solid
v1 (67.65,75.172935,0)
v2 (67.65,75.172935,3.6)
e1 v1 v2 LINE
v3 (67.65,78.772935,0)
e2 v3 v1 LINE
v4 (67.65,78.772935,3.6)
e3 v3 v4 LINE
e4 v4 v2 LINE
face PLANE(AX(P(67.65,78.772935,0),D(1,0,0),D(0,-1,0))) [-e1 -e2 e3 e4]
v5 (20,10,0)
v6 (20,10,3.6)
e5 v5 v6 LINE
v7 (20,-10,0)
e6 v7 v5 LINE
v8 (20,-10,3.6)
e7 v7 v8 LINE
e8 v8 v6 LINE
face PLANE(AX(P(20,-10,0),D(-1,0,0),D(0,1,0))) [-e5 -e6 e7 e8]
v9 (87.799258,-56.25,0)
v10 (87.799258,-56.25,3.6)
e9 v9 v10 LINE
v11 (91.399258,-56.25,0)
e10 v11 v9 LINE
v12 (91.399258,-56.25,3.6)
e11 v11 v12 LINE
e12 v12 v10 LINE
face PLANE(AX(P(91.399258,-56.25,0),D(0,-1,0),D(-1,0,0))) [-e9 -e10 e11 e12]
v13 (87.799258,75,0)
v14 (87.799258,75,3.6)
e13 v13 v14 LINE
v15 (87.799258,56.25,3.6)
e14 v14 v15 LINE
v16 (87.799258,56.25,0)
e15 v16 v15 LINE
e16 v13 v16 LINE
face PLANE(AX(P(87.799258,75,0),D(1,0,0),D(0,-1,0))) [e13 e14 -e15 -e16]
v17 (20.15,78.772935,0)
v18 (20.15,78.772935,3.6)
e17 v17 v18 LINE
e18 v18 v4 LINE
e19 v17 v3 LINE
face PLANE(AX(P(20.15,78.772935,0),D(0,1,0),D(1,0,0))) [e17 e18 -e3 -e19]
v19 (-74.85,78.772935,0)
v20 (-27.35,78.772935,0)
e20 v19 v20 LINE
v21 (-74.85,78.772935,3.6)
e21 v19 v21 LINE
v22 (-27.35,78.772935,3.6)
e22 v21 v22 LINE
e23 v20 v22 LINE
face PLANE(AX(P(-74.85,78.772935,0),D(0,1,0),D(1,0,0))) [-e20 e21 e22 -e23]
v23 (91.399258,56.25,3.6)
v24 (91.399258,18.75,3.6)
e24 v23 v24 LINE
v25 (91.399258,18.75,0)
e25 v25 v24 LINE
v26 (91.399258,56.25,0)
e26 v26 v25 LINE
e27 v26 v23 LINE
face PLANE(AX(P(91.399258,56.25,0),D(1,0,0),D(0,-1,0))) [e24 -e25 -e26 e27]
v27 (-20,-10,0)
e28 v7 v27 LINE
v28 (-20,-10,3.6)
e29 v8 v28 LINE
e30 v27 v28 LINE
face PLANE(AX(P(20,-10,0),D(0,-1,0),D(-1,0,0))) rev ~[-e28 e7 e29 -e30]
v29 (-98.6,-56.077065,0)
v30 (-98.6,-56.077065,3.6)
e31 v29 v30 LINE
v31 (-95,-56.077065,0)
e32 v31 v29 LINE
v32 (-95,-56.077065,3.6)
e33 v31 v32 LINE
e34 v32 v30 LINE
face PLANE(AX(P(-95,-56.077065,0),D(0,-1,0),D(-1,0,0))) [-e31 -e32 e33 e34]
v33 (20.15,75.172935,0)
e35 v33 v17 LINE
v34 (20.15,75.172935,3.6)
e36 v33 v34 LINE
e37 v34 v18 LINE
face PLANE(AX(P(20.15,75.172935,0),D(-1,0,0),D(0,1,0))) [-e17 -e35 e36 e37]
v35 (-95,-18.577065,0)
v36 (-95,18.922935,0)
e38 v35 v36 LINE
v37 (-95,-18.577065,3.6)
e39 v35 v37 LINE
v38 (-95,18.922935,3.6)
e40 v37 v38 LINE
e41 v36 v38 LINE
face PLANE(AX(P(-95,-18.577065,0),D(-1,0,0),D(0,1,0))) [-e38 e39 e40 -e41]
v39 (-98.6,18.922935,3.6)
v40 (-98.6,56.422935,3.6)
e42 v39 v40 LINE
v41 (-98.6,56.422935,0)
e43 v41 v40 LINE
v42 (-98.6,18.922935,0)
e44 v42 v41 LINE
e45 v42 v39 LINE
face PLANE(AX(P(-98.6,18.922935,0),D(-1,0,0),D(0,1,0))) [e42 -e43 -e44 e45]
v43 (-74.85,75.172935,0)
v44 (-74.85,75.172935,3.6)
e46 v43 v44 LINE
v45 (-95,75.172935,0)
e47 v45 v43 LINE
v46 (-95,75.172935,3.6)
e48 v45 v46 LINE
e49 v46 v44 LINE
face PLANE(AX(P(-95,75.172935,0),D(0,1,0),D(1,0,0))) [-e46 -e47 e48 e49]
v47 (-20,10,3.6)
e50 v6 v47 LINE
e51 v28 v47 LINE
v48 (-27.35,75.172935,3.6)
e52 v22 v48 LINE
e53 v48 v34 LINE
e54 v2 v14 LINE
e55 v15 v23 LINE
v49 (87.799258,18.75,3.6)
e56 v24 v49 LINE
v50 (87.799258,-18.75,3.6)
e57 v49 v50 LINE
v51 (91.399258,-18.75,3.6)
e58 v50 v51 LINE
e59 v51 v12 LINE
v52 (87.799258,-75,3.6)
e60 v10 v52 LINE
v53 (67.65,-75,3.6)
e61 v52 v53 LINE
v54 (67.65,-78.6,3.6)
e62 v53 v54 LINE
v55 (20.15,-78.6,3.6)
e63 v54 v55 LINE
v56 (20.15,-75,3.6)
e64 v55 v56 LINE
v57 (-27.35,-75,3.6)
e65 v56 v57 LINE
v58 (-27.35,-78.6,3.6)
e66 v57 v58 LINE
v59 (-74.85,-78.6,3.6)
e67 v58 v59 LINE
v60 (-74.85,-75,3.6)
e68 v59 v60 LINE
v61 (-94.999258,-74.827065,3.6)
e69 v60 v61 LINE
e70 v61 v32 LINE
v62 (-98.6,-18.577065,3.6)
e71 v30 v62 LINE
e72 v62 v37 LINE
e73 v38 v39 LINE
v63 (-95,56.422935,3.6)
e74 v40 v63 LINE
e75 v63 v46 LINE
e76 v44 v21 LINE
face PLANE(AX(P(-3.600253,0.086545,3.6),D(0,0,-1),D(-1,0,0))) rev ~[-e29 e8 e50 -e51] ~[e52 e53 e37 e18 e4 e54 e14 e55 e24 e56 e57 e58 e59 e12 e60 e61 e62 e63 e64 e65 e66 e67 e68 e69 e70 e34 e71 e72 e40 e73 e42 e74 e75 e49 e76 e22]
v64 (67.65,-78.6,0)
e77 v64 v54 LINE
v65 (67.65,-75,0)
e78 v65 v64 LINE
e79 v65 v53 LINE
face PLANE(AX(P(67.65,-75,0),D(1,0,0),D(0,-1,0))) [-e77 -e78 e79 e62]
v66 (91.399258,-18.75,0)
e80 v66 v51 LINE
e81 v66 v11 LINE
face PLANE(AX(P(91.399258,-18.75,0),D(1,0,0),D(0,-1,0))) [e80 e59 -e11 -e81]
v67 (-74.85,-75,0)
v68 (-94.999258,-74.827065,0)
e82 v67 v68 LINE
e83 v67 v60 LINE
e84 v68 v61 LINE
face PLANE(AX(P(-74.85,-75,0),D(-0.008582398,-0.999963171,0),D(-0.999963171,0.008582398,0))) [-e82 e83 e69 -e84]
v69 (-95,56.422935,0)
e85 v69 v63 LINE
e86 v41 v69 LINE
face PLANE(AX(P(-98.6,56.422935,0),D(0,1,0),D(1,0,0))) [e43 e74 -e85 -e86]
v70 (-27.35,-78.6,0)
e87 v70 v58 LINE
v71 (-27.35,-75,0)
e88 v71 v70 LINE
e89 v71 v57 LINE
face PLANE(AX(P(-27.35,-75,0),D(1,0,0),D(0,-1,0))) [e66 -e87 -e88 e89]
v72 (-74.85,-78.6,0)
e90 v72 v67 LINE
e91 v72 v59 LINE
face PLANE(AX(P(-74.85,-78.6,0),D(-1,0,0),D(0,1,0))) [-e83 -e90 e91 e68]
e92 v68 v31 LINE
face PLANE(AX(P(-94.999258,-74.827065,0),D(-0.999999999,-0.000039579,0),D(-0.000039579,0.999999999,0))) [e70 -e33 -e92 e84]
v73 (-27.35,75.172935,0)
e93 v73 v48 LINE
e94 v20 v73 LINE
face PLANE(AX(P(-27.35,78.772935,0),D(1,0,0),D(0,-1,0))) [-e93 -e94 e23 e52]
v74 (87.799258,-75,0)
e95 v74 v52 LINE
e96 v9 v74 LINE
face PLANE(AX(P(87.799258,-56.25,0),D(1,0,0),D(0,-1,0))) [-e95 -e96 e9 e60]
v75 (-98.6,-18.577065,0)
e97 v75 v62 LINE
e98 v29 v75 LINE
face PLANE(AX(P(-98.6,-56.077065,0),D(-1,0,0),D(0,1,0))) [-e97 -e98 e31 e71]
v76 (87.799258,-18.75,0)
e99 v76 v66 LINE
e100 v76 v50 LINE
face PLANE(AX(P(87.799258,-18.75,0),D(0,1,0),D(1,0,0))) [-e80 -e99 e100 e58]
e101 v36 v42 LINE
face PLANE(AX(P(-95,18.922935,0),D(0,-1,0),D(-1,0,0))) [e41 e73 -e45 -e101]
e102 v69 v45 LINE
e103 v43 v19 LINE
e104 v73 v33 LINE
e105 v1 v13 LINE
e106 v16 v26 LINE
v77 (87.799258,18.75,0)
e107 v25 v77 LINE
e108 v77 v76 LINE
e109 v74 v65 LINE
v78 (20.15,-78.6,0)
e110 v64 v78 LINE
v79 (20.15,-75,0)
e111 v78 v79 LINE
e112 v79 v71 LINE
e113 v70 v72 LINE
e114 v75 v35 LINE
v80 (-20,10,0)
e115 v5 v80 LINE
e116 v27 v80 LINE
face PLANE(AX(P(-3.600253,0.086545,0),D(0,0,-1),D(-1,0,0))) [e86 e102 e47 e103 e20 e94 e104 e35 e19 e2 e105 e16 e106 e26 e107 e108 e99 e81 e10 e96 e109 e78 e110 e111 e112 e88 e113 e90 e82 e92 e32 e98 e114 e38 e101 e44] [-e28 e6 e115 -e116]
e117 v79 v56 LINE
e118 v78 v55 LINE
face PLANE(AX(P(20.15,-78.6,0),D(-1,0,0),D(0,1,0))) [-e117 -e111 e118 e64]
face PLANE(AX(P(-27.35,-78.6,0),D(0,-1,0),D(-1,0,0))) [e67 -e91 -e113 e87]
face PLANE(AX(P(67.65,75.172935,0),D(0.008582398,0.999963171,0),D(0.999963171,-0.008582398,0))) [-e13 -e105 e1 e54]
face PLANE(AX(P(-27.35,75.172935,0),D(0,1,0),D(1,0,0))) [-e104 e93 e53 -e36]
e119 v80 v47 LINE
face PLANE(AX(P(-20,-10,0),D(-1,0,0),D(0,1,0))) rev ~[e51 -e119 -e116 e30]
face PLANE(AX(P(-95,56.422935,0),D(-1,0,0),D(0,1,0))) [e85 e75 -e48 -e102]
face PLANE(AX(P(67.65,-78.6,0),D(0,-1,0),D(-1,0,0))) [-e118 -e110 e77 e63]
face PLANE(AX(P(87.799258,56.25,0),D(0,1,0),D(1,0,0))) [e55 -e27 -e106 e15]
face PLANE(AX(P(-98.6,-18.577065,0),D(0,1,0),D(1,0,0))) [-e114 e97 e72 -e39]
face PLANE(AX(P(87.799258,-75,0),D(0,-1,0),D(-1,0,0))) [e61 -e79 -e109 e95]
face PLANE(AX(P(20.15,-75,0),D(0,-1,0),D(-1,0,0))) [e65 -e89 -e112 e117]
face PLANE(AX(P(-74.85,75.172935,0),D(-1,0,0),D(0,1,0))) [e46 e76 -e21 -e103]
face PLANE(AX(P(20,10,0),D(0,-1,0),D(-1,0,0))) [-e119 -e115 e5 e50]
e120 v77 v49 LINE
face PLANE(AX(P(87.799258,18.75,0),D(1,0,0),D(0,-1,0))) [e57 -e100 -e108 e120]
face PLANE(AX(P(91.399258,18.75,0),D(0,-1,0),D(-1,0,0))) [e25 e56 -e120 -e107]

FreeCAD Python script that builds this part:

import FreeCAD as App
import Part
import Sketcher
from FreeCAD import Vector
Q = App.Units.Quantity


def add_polygon(sketch, points):
    """Adds a closed chain of lines whose ends are joined by coincident constraints."""
    first, n = sketch.GeometryCount, len(points)
    for a, b in zip(points, points[1:] + points[:1]):
        sketch.addGeometry(Part.LineSegment(App.Vector(*a, 0), App.Vector(*b, 0)), False)
    for i in range(n):
        sketch.addConstraint(Sketcher.Constraint("Coincident", first + i, 2, first + (i + 1) % n, 1))

doc = App.newDocument("Part")
body = doc.addObject("PartDesign::Body", "Body")

sketch1 = doc.addObject("Sketcher::SketchObject", "Sketch")
body.addObject(sketch1)
sketch1.AttachmentSupport = (doc.XY_Plane, [""])
sketch1.MapMode = "FlatFace"
add_polygon(sketch1, [(-74.8, 75.2), (-95, 75.2), (-95, 56.4), (-98.6, 56.4), (-98.6, 18.9), (-95, 18.9), (-95, -18.6), (-98.6, -18.6), (-98.6, -56.1), (-95, -56.1), (-95, -74.8), (-74.8, -75), (-74.8, -78.6), (-27.4, -78.6), (-27.4, -75), (20.1, -75), (20.1, -78.6), (67.7, -78.6), (67.7, -75), (87.8, -75), (87.8, -56.2), (91.4, -56.2), (91.4, -18.8), (87.8, -18.8), (87.8, 18.8), (91.4, 18.8), (91.4, 56.2), (87.8, 56.2), (87.8, 75), (67.7, 75.2), (67.7, 78.8), (20.1, 78.8), (20.1, 75.2), (-27.4, 75.2), (-27.4, 78.8), (-74.8, 78.8)])
sketch1.addConstraint([
    Sketcher.Constraint("Horizontal", 0),
    Sketcher.Constraint("Vertical", 1),
    Sketcher.Constraint("Horizontal", 2),
    Sketcher.Constraint("Vertical", 3),
    Sketcher.Constraint("Horizontal", 4),
    Sketcher.Constraint("Vertical", 5),
    Sketcher.Constraint("Horizontal", 6),
    Sketcher.Constraint("Vertical", 7),
    Sketcher.Constraint("Horizontal", 8),
    Sketcher.Constraint("Vertical", 11),
    Sketcher.Constraint("Horizontal", 12),
    Sketcher.Constraint("Vertical", 13),
    Sketcher.Constraint("Horizontal", 14),
    Sketcher.Constraint("Vertical", 15),
    Sketcher.Constraint("Horizontal", 16),
    Sketcher.Constraint("Vertical", 17),
    Sketcher.Constraint("Horizontal", 18),
    Sketcher.Constraint("Vertical", 19),
    Sketcher.Constraint("Horizontal", 20),
    Sketcher.Constraint("Vertical", 21),
    Sketcher.Constraint("Horizontal", 22),
    Sketcher.Constraint("Vertical", 23),
    Sketcher.Constraint("Horizontal", 24),
    Sketcher.Constraint("Vertical", 25),
    Sketcher.Constraint("Horizontal", 26),
    Sketcher.Constraint("Vertical", 27),
    Sketcher.Constraint("Vertical", 29),
    Sketcher.Constraint("Horizontal", 30),
    Sketcher.Constraint("Vertical", 31),
    Sketcher.Constraint("Horizontal", 32),
    Sketcher.Constraint("Vertical", 33),
    Sketcher.Constraint("Horizontal", 34),
    Sketcher.Constraint("Vertical", 35),
    Sketcher.Constraint("Symmetric", 21, 2, 24, 2, -1),
    Sketcher.Constraint("Symmetric", 19, 2, 26, 2, -1),
    Sketcher.Constraint("Parallel", 10, 28),
    Sketcher.Constraint("Horizontal", 10, 2, 13, 2),
    Sketcher.Constraint("Horizontal", 12, 2, 15, 2),
    Sketcher.Constraint("Horizontal", 14, 2, 17, 2),
    Sketcher.Constraint("Horizontal", 0, 2, 28, 2),
    Sketcher.Constraint("Horizontal", 28, 2, 31, 2),
    Sketcher.Constraint("Horizontal", 30, 2, 33, 2),
    Sketcher.Constraint("Vertical", 1, 2, 4, 2),
    Sketcher.Constraint("Vertical", 3, 2, 6, 2),
    Sketcher.Constraint("Vertical", 5, 2, 8, 2),
    Sketcher.Constraint("Vertical", 19, 2, 22, 2),
    Sketcher.Constraint("Vertical", 17, 2, 28, 2),
    Sketcher.Constraint("Vertical", 15, 2, 30, 2),
    Sketcher.Constraint("Vertical", 13, 2, 32, 2),
    Sketcher.Constraint("Vertical", 11, 2, 34, 2),
    Sketcher.Constraint("Equal", 12, 14),
    Sketcher.Constraint("Equal", 14, 16),
    Sketcher.Constraint("Equal", 8, 20),
    Sketcher.Constraint("Equal", 3, 5),
    Sketcher.Constraint("Equal", 5, 7),
    Sketcher.Constraint("Equal", 26, 11),
    Sketcher.Constraint("Equal", 1, 19),
    Sketcher.Constraint("Equal", 7, 21),
    Sketcher.Constraint("Equal", 21, 23),
    Sketcher.Constraint("Equal", 19, 27),
    Sketcher.Constraint("Equal", 17, 29),
    Sketcher.Constraint("Equal", 10, 28),
    Sketcher.Constraint("DistanceX", 2, 2, 2, 1, Q("3.6 mm")),
    Sketcher.Constraint("DistanceX", 12, 1, 12, 2, Q("47.5 mm")),
    Sketcher.Constraint("DistanceY", 3, 2, 3, 1, Q("37.5 mm")),
    Sketcher.Constraint("DistanceX", 0, 2, -1, 1, Q("95 mm")),
    Sketcher.Constraint("DistanceY", 10, 2, -1, 1, Q("75 mm")),
    Sketcher.Constraint("DistanceX", 0, 2, 0, 1, Q("20.15 mm")),
    Sketcher.Constraint("Distance", 10, Q("20.15 mm")),
    Sketcher.Constraint("DistanceY", -1, 1, 0, 2, Q("75.172935 mm")),
])
pad1 = doc.addObject("PartDesign::Pad", "Pad")
body.addObject(pad1)
pad1.Profile = sketch1
pad1.Length = 3.6

sketch2 = doc.addObject("Sketcher::SketchObject", "Sketch001")
body.addObject(sketch2)
sketch2.AttachmentSupport = (doc.XY_Plane, [""])
sketch2.MapMode = "FlatFace"
add_polygon(sketch2, [(20, 10), (20, -10), (-20, -10), (-20, 10)])
sketch2.addConstraint([
    Sketcher.Constraint("Vertical", 0),
    Sketcher.Constraint("Horizontal", 1),
    Sketcher.Constraint("Vertical", 2),
    Sketcher.Constraint("Horizontal", 3),
    Sketcher.Constraint("Symmetric", 0, 2, 2, 2, -1, 1),
    Sketcher.Constraint("DistanceX", 1, 2, 1, 1, Q("40 mm")),
    Sketcher.Constraint("DistanceY", 0, 2, 0, 1, Q("20 mm")),
])
pocket1 = doc.addObject("PartDesign::Pocket", "Pocket")
body.addObject(pocket1)
pocket1.Profile = sketch2
pocket1.Length = 10
pocket1.Reversed = True

doc.recompute()
